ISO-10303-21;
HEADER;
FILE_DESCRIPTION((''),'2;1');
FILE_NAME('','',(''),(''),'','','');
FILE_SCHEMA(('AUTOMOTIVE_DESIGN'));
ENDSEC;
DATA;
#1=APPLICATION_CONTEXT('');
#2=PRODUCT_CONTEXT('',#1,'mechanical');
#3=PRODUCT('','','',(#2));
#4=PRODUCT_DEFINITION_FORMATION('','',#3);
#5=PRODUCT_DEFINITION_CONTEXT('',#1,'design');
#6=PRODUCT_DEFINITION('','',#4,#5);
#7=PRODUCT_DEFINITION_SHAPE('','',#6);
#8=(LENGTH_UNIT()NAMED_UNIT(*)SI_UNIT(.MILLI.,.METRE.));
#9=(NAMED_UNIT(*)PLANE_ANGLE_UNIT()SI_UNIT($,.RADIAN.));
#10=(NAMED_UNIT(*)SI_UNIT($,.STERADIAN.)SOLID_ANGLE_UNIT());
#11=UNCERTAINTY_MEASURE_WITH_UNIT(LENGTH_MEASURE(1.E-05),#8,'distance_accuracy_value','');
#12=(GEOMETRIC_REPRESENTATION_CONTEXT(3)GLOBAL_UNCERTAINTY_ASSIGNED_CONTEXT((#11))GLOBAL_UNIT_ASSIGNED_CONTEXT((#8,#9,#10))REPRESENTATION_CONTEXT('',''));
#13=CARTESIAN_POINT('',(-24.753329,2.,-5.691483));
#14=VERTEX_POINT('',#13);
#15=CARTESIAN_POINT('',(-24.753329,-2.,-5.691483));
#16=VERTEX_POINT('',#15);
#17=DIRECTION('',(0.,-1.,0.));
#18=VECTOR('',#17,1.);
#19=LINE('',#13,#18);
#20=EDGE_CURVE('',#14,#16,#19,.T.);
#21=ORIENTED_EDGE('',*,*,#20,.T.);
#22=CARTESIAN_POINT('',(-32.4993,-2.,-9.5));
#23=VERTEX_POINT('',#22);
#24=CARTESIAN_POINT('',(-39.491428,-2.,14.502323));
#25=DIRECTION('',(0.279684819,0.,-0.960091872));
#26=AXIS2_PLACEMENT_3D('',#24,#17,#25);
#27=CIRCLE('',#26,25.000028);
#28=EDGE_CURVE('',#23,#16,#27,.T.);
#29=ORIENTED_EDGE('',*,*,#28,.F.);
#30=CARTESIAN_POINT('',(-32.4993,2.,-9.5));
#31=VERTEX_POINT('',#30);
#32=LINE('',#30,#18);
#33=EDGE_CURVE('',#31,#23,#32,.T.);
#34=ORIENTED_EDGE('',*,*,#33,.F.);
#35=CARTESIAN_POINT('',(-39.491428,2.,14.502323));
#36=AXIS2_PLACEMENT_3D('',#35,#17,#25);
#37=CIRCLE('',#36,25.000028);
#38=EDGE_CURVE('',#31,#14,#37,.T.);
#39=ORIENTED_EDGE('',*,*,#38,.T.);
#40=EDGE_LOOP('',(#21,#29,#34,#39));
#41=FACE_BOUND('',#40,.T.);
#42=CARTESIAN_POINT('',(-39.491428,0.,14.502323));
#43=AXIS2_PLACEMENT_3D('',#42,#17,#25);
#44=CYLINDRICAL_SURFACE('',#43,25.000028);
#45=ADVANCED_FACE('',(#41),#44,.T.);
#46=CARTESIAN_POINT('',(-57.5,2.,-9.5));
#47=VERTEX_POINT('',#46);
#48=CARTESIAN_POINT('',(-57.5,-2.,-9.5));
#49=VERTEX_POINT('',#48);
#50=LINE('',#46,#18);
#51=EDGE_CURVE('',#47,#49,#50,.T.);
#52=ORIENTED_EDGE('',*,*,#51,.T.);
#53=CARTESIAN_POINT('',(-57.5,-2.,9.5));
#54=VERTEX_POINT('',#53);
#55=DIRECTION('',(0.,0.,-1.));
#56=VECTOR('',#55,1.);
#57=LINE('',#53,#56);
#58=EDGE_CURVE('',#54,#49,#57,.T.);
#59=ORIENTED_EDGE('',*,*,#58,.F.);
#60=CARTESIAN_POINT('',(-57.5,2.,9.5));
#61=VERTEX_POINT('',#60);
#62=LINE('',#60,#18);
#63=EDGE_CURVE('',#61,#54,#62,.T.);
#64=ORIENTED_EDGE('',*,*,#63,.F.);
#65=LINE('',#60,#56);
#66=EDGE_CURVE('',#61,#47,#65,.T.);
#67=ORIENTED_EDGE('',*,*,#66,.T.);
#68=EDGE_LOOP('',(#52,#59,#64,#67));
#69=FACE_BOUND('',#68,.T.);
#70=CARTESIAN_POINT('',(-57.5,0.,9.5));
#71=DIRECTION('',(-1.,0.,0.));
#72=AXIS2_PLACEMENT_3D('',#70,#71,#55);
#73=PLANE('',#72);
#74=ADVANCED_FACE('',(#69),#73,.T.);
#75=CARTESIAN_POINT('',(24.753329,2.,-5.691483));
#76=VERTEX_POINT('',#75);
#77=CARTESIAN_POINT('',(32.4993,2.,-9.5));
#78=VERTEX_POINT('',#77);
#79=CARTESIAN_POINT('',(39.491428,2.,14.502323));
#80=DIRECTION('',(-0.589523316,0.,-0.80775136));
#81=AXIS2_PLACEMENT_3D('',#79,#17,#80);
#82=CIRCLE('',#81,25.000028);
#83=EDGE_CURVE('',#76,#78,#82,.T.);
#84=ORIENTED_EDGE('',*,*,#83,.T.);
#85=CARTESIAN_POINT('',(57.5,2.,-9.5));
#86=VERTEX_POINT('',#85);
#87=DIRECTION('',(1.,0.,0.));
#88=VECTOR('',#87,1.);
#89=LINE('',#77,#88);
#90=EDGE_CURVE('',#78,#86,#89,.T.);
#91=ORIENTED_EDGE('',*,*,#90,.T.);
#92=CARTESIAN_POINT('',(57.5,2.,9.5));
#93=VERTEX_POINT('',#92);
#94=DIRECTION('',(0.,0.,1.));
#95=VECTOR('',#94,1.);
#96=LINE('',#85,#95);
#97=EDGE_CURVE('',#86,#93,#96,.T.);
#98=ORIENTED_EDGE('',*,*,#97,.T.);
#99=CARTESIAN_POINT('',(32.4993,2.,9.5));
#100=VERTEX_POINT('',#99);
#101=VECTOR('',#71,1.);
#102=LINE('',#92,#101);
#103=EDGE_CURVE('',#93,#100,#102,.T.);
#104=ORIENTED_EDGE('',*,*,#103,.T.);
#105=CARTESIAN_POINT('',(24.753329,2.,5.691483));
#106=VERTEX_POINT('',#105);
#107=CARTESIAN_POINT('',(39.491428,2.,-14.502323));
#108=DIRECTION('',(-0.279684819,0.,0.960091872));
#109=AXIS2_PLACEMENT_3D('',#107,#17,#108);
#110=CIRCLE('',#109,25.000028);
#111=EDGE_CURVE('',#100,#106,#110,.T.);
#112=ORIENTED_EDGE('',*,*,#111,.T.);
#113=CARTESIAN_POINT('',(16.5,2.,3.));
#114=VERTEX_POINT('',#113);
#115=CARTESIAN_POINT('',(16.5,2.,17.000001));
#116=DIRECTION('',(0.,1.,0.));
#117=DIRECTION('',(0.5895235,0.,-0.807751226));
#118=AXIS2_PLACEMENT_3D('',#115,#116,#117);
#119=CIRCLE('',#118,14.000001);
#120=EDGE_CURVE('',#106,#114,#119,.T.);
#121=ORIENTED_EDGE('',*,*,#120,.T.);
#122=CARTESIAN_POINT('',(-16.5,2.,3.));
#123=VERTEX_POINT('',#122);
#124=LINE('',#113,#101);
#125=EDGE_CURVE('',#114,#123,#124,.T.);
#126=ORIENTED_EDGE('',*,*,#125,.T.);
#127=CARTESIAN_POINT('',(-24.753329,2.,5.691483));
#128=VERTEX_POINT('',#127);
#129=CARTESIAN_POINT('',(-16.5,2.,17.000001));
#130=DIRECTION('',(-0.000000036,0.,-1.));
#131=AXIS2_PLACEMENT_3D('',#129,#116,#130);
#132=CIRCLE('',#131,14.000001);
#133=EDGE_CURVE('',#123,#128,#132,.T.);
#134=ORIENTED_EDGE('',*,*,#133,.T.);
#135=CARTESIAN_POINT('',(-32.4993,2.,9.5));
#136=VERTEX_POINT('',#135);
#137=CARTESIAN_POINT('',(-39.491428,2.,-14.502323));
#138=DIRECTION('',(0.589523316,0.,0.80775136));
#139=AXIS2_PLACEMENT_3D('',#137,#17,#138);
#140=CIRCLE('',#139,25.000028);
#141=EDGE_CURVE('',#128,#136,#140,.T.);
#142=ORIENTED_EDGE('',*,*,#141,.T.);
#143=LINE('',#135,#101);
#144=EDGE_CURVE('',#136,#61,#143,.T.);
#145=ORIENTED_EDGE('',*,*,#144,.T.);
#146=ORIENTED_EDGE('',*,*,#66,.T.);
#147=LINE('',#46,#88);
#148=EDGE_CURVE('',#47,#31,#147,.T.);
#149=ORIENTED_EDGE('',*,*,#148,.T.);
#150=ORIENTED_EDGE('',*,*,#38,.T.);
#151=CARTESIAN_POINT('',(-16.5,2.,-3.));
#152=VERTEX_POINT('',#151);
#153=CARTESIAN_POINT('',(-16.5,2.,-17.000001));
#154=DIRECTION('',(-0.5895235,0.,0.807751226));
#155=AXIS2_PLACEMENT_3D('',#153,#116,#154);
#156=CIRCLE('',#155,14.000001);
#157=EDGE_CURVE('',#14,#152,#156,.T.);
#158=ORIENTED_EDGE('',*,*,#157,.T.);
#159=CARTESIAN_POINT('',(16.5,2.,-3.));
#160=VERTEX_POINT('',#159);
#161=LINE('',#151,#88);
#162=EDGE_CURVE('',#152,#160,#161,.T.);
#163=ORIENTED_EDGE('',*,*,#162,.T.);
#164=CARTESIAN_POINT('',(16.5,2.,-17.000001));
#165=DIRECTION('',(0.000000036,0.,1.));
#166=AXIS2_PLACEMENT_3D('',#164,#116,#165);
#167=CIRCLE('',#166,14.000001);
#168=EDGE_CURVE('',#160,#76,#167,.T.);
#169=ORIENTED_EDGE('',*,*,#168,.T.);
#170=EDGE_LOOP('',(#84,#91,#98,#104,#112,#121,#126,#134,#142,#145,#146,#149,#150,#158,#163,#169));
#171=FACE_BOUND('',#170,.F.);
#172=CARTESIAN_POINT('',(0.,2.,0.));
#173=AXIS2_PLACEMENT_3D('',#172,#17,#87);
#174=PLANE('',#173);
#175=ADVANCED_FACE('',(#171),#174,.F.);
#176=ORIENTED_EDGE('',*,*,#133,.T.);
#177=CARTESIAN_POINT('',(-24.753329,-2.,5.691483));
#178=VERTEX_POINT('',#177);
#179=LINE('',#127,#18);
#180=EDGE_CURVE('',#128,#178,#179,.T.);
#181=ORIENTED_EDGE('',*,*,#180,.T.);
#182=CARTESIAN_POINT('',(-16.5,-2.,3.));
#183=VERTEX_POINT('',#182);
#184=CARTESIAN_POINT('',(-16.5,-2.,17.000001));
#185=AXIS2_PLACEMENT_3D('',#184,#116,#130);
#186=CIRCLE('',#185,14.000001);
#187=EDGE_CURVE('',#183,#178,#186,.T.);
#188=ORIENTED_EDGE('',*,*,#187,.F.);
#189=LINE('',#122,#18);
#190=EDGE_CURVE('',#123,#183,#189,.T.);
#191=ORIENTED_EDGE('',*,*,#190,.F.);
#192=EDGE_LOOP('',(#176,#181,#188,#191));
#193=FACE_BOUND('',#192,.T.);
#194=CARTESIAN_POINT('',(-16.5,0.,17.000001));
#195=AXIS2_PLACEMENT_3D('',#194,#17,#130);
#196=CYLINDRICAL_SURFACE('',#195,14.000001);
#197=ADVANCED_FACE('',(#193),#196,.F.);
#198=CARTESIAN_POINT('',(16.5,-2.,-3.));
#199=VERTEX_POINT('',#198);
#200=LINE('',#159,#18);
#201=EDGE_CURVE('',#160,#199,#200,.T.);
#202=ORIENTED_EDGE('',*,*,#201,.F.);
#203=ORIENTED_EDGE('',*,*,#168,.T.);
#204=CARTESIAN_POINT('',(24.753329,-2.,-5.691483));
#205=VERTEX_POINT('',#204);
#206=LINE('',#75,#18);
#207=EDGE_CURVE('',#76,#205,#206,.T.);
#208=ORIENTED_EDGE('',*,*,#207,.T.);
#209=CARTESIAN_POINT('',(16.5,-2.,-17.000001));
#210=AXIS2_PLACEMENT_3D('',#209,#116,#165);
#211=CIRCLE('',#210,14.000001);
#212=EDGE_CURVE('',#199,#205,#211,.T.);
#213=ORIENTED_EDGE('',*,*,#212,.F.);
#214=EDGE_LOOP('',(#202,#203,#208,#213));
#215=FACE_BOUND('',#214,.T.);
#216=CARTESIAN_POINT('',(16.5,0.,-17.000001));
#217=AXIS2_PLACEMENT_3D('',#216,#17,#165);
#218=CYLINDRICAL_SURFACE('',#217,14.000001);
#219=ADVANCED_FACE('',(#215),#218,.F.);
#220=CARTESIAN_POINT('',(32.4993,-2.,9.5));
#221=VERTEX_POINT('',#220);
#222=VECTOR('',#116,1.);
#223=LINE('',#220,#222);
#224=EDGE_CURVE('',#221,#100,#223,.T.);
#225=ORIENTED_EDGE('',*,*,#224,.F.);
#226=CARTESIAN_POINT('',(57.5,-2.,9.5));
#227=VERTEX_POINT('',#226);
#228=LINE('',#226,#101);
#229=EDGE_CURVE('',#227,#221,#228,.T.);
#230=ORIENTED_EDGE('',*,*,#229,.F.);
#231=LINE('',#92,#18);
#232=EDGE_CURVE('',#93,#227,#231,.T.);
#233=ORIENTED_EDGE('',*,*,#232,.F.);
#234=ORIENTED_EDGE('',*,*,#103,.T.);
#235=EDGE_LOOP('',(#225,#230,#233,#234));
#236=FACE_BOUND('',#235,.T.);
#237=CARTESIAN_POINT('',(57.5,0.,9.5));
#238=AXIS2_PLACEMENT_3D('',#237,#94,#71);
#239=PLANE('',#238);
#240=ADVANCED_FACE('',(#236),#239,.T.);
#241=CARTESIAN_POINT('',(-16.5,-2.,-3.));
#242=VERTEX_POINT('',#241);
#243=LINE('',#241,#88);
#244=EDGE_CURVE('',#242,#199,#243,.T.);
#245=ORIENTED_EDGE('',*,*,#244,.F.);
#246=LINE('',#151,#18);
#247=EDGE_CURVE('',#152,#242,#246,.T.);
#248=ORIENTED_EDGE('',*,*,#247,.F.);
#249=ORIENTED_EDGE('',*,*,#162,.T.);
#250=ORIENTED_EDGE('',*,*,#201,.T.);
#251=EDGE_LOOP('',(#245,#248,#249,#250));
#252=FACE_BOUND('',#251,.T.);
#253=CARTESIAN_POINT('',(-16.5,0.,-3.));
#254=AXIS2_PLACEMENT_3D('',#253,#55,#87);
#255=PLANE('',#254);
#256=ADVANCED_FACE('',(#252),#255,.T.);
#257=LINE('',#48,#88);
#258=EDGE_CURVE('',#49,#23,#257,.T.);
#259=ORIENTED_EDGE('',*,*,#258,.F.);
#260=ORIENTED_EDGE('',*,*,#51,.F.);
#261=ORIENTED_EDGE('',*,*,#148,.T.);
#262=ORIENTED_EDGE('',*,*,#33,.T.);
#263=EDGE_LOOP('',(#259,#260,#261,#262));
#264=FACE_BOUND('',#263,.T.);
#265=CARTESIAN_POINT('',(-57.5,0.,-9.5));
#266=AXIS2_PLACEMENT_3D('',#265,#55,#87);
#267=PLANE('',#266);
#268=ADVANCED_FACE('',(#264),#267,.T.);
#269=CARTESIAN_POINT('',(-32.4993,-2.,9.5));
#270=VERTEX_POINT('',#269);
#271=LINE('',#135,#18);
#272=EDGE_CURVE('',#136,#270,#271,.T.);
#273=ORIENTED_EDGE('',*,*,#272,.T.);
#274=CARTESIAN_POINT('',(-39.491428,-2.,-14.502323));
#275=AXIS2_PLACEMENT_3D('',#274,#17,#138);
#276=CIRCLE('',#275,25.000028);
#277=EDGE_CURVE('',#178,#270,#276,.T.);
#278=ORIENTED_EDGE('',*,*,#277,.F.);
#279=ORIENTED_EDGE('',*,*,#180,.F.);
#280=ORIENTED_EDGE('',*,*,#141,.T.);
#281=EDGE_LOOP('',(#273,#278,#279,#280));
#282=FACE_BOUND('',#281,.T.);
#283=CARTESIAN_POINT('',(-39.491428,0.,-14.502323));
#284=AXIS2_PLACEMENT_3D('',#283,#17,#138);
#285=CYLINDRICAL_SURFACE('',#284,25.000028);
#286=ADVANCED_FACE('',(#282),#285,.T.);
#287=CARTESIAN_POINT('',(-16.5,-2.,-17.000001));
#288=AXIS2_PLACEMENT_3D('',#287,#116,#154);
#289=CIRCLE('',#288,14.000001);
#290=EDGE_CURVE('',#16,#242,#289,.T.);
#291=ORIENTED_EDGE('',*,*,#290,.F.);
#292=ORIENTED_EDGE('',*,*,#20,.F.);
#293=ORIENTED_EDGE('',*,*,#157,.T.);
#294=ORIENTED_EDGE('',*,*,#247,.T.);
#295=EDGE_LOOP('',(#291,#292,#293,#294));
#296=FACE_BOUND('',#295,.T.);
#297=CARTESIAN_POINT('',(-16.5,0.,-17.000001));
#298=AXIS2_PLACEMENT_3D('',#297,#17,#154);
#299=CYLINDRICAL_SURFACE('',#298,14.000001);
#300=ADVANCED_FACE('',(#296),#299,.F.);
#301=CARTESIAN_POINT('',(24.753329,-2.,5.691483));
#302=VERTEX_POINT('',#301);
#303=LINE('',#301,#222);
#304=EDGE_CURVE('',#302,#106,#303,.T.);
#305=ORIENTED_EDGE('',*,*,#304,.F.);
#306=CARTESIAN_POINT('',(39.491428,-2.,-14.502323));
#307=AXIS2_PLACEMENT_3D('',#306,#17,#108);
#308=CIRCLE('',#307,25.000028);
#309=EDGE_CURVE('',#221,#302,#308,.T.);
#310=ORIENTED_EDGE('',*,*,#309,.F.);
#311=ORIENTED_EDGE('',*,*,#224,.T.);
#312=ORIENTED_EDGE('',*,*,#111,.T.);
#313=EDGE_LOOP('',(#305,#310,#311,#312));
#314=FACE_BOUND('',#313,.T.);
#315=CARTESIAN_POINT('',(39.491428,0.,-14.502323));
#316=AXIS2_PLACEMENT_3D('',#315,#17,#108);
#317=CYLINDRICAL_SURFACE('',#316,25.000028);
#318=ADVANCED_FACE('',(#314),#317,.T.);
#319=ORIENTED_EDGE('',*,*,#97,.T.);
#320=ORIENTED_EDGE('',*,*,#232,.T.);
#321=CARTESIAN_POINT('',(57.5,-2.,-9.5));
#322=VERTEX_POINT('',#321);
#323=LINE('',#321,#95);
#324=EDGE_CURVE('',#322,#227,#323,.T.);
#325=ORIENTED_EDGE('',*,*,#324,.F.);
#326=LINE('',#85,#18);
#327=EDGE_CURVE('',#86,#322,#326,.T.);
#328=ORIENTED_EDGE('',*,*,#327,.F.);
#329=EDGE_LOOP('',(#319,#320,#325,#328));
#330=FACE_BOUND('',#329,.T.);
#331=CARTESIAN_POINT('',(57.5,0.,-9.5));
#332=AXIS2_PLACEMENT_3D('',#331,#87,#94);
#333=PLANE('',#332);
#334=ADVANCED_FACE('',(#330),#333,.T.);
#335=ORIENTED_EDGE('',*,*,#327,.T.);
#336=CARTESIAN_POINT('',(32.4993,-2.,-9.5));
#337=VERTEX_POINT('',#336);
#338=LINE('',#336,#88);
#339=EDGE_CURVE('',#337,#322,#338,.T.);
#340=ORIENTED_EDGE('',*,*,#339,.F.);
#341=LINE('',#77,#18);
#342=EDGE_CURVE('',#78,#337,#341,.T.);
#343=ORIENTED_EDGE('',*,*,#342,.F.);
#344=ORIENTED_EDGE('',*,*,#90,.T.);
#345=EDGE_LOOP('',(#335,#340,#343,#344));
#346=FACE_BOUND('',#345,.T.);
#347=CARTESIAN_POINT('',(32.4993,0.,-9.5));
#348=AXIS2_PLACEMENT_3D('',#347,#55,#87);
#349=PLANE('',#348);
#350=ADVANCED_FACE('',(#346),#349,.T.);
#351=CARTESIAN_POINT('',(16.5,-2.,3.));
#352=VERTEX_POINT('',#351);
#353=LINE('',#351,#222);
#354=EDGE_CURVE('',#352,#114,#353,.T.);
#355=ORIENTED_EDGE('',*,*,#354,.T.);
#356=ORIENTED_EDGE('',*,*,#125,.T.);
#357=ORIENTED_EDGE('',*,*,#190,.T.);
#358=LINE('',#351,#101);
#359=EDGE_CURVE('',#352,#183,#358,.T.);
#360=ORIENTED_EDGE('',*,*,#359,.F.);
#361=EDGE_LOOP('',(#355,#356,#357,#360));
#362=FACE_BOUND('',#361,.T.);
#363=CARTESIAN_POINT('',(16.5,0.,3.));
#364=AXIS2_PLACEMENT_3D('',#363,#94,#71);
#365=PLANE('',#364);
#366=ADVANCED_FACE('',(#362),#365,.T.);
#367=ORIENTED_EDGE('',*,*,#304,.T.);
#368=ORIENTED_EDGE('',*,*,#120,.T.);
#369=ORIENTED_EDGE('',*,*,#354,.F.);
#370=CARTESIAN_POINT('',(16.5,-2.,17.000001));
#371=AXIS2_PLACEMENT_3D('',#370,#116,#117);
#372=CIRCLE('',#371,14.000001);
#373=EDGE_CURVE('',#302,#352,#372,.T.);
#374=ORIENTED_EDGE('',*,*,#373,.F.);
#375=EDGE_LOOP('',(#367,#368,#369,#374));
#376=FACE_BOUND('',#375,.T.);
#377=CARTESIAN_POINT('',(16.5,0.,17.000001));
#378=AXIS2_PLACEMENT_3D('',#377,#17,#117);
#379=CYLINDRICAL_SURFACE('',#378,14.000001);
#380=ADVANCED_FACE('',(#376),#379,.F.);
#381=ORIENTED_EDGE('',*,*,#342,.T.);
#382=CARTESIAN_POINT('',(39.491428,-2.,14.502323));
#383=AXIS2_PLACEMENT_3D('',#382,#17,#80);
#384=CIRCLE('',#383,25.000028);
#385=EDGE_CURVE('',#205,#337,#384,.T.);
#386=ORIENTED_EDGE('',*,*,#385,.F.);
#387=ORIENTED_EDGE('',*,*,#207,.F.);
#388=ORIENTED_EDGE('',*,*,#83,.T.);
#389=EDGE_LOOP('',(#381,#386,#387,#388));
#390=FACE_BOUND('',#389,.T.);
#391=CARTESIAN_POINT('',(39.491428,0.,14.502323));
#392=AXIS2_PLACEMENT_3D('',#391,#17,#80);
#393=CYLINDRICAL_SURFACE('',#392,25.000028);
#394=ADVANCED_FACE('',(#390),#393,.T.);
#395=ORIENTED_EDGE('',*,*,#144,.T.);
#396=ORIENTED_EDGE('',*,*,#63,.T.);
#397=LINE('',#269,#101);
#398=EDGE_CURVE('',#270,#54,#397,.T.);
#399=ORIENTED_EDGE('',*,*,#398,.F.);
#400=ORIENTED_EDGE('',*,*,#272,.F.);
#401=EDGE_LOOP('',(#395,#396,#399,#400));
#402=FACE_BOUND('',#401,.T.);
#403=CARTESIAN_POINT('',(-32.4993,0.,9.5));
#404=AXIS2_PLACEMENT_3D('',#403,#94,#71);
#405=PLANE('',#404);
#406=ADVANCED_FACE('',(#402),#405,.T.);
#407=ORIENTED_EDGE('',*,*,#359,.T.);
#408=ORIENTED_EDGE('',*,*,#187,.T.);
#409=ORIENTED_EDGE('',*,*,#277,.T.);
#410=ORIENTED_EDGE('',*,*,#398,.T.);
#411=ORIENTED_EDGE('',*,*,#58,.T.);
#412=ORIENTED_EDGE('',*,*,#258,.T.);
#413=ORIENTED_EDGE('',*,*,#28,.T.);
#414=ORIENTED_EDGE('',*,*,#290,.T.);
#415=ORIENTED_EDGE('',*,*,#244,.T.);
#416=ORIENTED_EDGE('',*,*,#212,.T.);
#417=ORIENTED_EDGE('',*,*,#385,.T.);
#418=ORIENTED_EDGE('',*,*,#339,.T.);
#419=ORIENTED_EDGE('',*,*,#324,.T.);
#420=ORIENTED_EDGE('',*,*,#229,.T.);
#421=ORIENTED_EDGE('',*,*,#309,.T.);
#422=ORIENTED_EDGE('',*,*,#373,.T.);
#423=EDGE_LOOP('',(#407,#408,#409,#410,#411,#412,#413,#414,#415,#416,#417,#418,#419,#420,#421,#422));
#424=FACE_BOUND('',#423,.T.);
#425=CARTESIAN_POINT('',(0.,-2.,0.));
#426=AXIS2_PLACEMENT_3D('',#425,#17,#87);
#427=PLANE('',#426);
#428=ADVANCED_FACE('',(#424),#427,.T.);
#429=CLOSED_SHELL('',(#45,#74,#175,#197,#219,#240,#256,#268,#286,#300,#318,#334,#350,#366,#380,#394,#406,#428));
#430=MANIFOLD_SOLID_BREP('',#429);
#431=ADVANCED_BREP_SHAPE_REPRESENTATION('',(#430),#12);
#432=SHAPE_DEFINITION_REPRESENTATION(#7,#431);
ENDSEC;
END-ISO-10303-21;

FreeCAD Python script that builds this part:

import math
import FreeCAD as App
import Part
import Sketcher

V = App.Vector

doc = App.newDocument("Part")
body = doc.addObject("PartDesign::Body", "Body")

# Sketch on XZ plane
sketch1 = body.newObject("Sketcher::SketchObject", "Sketch")
sketch1.AttachmentSupport = (doc.getObject("XZ_Plane"), [""])
sketch1.MapMode = "FlatFace"
sketch1.addGeometry([
    Part.LineSegment(V(16.5, 3, 0), V(-16.5, 3, 0)),  # 0
    Part.ArcOfCircle(Part.Circle(V(-16.5, 17.000001, 0), V(0, 0, 1), 14.000001), math.radians(-126.123202), math.radians(-90.000002)),  # 1
    Part.ArcOfCircle(Part.Circle(V(-39.491428, -14.502323, 0), V(0, 0, 1), 25.000028), math.radians(53.876811), math.radians(73.758605)),  # 2
    Part.LineSegment(V(-32.4993, 9.5, 0), V(-57.5, 9.5, 0)),  # 3
    Part.LineSegment(V(-57.5, 9.5, 0), V(-57.5, -9.5, 0)),  # 4
    Part.LineSegment(V(-57.5, -9.5, 0), V(-32.4993, -9.5, 0)),  # 5
    Part.ArcOfCircle(Part.Circle(V(-39.491428, 14.502323, 0), V(0, 0, 1), 25.000028), math.radians(-73.758605), math.radians(-53.876811)),  # 6
    Part.ArcOfCircle(Part.Circle(V(-16.5, -17.000001, 0), V(0, 0, 1), 14.000001), math.radians(90.000002), math.radians(126.123202)),  # 7
    Part.LineSegment(V(-16.5, -3, 0), V(16.5, -3, 0)),  # 8
    Part.ArcOfCircle(Part.Circle(V(16.5, -17.000001, 0), V(0, 0, 1), 14.000001), math.radians(53.876798), math.radians(89.999998)),  # 9
    Part.ArcOfCircle(Part.Circle(V(39.491428, 14.502323, 0), V(0, 0, 1), 25.000028), math.radians(-126.123189), math.radians(-106.241395)),  # 10
    Part.LineSegment(V(32.4993, -9.5, 0), V(57.5, -9.5, 0)),  # 11
    Part.LineSegment(V(57.5, -9.5, 0), V(57.5, 9.5, 0)),  # 12
    Part.LineSegment(V(57.5, 9.5, 0), V(32.4993, 9.5, 0)),  # 13
    Part.ArcOfCircle(Part.Circle(V(39.491428, -14.502323, 0), V(0, 0, 1), 25.000028), math.radians(106.241395), math.radians(126.123189)),  # 14
    Part.ArcOfCircle(Part.Circle(V(16.5, 17.000001, 0), V(0, 0, 1), 14.000001), math.radians(-89.999998), math.radians(-53.876798)),  # 15
], False)
sketch1.addConstraint([
    Sketcher.Constraint("Tangent", 0, 2, 1, 2),
    Sketcher.Constraint("Tangent", 1, 1, 2, 1),
    Sketcher.Constraint("Coincident", 2, 2, 3, 1),
    Sketcher.Constraint("Coincident", 3, 2, 4, 1),
    Sketcher.Constraint("Coincident", 4, 2, 5, 1),
    Sketcher.Constraint("Coincident", 5, 2, 6, 1),
    Sketcher.Constraint("Tangent", 6, 2, 7, 2),
    Sketcher.Constraint("Tangent", 7, 1, 8, 1),
    Sketcher.Constraint("Tangent", 8, 2, 9, 2),
    Sketcher.Constraint("Tangent", 9, 1, 10, 1),
    Sketcher.Constraint("Coincident", 10, 2, 11, 1),
    Sketcher.Constraint("Coincident", 11, 2, 12, 1),
    Sketcher.Constraint("Coincident", 12, 2, 13, 1),
    Sketcher.Constraint("Coincident", 13, 2, 14, 1),
    Sketcher.Constraint("Tangent", 14, 2, 15, 2),
    Sketcher.Constraint("Tangent", 15, 1, 0, 1),
    Sketcher.Constraint("Horizontal", 0),
    Sketcher.Constraint("Horizontal", 3),
    Sketcher.Constraint("Vertical", 4),
    Sketcher.Constraint("Horizontal", 5),
    Sketcher.Constraint("Horizontal", 8),
    Sketcher.Constraint("Horizontal", 11),
    Sketcher.Constraint("Vertical", 12),
    Sketcher.Constraint("Horizontal", 13),
    Sketcher.Constraint("Equal", 2, 6),
    Sketcher.Constraint("Equal", 1, 7),
    Sketcher.Constraint("Equal", 7, 9),
    Sketcher.Constraint("Equal", 6, 10),
    Sketcher.Constraint("Equal", 10, 14),
    Sketcher.Constraint("Equal", 9, 15),
    Sketcher.Constraint("Symmetric", 1, 3, 9, 3, -1, 1),
    Sketcher.Constraint("Symmetric", 6, 3, 14, 3, -1, 1),
    Sketcher.Constraint("Symmetric", 2, 2, 10, 2, -1, 1),
    Sketcher.Constraint("Symmetric", 4, 2, 12, 2, -1, 1),
    Sketcher.Constraint("Symmetric", 6, 3, 10, 3, -2),
    Sketcher.Constraint("Horizontal", 5, 2, 10, 2),
    Sketcher.Constraint("Radius", 1, 14.000001),
    Sketcher.Constraint("DistanceX", 0, 2, 0, 1, 33.0),
    Sketcher.Constraint("DistanceY", 4, 2, 4, 1, 19.0),
    Sketcher.Constraint("DistanceY", -1, 1, 1, 3, 17.000001),
    Sketcher.Constraint("DistanceX", 3, 2, 0, 2, 41.0),
    Sketcher.Constraint("DistanceX", 3, 2, 3, 1, 25.0007),
    Sketcher.Constraint("Radius", 2, 25.000028),
])
pad1 = body.newObject("PartDesign::Pad", "Pad")
pad1.Profile = sketch1
pad1.Length = 4
pad1.Midplane = True

doc.recompute()
